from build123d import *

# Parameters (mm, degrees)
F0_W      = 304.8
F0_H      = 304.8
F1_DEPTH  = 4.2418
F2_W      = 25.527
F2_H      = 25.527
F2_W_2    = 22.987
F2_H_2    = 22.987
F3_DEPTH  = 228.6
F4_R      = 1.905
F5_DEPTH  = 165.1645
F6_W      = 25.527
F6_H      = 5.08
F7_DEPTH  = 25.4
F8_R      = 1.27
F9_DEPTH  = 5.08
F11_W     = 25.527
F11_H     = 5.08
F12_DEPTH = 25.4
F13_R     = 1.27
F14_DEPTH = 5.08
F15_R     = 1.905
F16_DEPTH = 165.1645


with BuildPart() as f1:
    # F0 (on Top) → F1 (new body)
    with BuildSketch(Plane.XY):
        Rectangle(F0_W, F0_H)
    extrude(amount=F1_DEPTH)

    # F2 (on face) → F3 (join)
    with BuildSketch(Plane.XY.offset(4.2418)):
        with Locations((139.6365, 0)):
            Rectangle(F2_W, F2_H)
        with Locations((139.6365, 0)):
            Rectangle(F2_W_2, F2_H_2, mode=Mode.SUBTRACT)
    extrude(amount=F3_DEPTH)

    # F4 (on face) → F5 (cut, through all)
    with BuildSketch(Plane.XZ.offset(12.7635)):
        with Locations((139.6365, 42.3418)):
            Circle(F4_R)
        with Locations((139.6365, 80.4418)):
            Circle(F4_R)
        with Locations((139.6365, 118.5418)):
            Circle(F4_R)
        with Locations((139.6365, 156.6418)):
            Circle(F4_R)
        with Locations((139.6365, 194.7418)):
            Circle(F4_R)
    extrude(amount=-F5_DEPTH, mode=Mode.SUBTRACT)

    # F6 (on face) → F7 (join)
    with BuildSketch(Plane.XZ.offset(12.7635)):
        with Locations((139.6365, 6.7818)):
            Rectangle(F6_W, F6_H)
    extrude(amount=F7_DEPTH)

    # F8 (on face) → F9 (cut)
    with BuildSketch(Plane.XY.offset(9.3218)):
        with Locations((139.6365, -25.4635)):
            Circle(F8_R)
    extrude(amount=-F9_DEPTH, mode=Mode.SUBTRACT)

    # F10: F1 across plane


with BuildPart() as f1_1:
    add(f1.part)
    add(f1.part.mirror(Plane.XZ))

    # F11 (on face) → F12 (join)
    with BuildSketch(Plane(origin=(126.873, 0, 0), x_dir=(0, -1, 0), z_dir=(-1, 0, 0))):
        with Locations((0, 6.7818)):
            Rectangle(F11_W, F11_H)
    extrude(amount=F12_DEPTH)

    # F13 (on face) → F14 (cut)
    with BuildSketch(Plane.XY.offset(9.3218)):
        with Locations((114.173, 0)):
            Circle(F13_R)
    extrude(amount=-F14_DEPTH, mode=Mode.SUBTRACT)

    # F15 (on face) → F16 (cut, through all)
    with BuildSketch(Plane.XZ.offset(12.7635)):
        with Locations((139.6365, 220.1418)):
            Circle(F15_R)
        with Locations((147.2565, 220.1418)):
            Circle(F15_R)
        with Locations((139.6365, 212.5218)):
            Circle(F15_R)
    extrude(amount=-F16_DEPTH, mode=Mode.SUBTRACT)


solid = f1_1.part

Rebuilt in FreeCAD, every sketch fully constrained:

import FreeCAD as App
import Part
import Sketcher
Q = App.Units.Quantity

doc = App.newDocument("Part")
params = doc.addObject("Spreadsheet::Sheet", "Params")
for row, (alias, value) in enumerate([
    ("sketch1_width", "12 in"),
    ("pad1_length", "0.167 in"),
    ("sketch2_width", "1.005 in"),
    ("sketch2_width2", "0.905 in"),
    ("pad2_length", "9 in"),
    ("sketch3_diameter", "0.15 in"),
    ("sketch4_height", "0.2 in"),
    ("sketch4_width", "1.005 in"),
    ("pad3_length", "1 in"),
    ("sketch5_diameter", "0.1 in"),
    ("pocket2_length", "0.2 in"),
    ("sketch6_height", "0.2 in"),
    ("sketch6_width", "1.005 in"),
    ("pad4_length", "1 in"),
    ("sketch7_diameter", "0.1 in"),
    ("pocket3_length", "0.2 in"),
    ("sketch8_diameter", "0.15 in"),
], start=1):
    params.set(f"A{row}", alias)
    params.set(f"B{row}", "=" + value)
    params.setAlias(f"B{row}", alias)

body = doc.addObject("PartDesign::Body", "Body")

# Sketch on XY plane
sketch1 = body.newObject("Sketcher::SketchObject", "Sketch")
sketch1.AttachmentSupport = (doc.getObject("XY_Plane"), [""])
sketch1.MapMode = "FlatFace"
sketch1.addGeometry(Part.LineSegment(App.Vector(-152, 152, 0), App.Vector(-152, -152, 0)), False)
sketch1.addGeometry(Part.LineSegment(App.Vector(-152, -152, 0), App.Vector(152, -152, 0)), False)
sketch1.addGeometry(Part.LineSegment(App.Vector(152, -152, 0), App.Vector(152, 152, 0)), False)
sketch1.addGeometry(Part.LineSegment(App.Vector(152, 152, 0), App.Vector(-152, 152, 0)), False)
sketch1.addConstraint(Sketcher.Constraint("Coincident", 0, 2, 1, 1))
sketch1.addConstraint(Sketcher.Constraint("Coincident", 1, 2, 2, 1))
sketch1.addConstraint(Sketcher.Constraint("Coincident", 2, 2, 3, 1))
sketch1.addConstraint(Sketcher.Constraint("Coincident", 3, 2, 0, 1))
sketch1.addConstraint(Sketcher.Constraint("Vertical", 0))
sketch1.addConstraint(Sketcher.Constraint("Horizontal", 1))
sketch1.addConstraint(Sketcher.Constraint("Vertical", 2))
sketch1.addConstraint(Sketcher.Constraint("Horizontal", 3))
sketch1.addConstraint(Sketcher.Constraint("Symmetric", 0, 2, 2, 2, -1, 1))
sketch1.addConstraint(Sketcher.Constraint("Equal", 3, 0))
sketch1.addConstraint(Sketcher.Constraint("DistanceX", 1, 1, 1, 2, Q("12 in")))
sketch1.setExpression("Constraints[10]", "Params.sketch1_width")
pad1 = body.newObject("PartDesign::Pad", "Pad")
pad1.Profile = sketch1
pad1.setExpression("Length", "Params.pad1_length")

# Sketch on XY plane
sketch2 = body.newObject("Sketcher::SketchObject", "Sketch001")
sketch2.AttachmentSupport = (doc.getObject("XY_Plane"), [""])
sketch2.MapMode = "FlatFace"
sketch2.AttachmentOffset = App.Placement(App.Vector(0, 0, 0.167 * 25.4), App.Rotation())
sketch2.addGeometry(Part.LineSegment(App.Vector(127, 13, 0), App.Vector(127, -13, 0)), False)
sketch2.addGeometry(Part.LineSegment(App.Vector(127, -13, 0), App.Vector(152, -13, 0)), False)
sketch2.addGeometry(Part.LineSegment(App.Vector(152, -13, 0), App.Vector(152, 13, 0)), False)
sketch2.addGeometry(Part.LineSegment(App.Vector(152, 13, 0), App.Vector(127, 13, 0)), False)
sketch2.addGeometry(Part.LineSegment(App.Vector(151, -11, 0), App.Vector(128, -11, 0)), False)
sketch2.addGeometry(Part.LineSegment(App.Vector(128, -11, 0), App.Vector(128, 11, 0)), False)
sketch2.addGeometry(Part.LineSegment(App.Vector(128, 11, 0), App.Vector(151, 11, 0)), False)
sketch2.addGeometry(Part.LineSegment(App.Vector(151, 11, 0), App.Vector(151, -11, 0)), False)
sketch2.addConstraint(Sketcher.Constraint("Coincident", 0, 2, 1, 1))
sketch2.addConstraint(Sketcher.Constraint("Coincident", 1, 2, 2, 1))
sketch2.addConstraint(Sketcher.Constraint("Coincident", 2, 2, 3, 1))
sketch2.addConstraint(Sketcher.Constraint("Coincident", 3, 2, 0, 1))
sketch2.addConstraint(Sketcher.Constraint("Coincident", 4, 2, 5, 1))
sketch2.addConstraint(Sketcher.Constraint("Coincident", 5, 2, 6, 1))
sketch2.addConstraint(Sketcher.Constraint("Coincident", 6, 2, 7, 1))
sketch2.addConstraint(Sketcher.Constraint("Coincident", 7, 2, 4, 1))
sketch2.addConstraint(Sketcher.Constraint("Vertical", 0))
sketch2.addConstraint(Sketcher.Constraint("Horizontal", 1))
sketch2.addConstraint(Sketcher.Constraint("Vertical", 2))
sketch2.addConstraint(Sketcher.Constraint("Horizontal", 3))
sketch2.addConstraint(Sketcher.Constraint("Horizontal", 4))
sketch2.addConstraint(Sketcher.Constraint("Vertical", 5))
sketch2.addConstraint(Sketcher.Constraint("Horizontal", 6))
sketch2.addConstraint(Sketcher.Constraint("Vertical", 7))
sketch2.addConstraint(Sketcher.Constraint("Equal", 3, 0))
sketch2.addConstraint(Sketcher.Constraint("Equal", 6, 5))
sketch2.addConstraint(Sketcher.Constraint("DistanceX", -1, 1, 1, 2, Q("6 in")))
sketch2.addConstraint(Sketcher.Constraint("DistanceX", 1, 1, 1, 2, Q("1.005 in")))
sketch2.addConstraint(Sketcher.Constraint("DistanceX", 4, 2, 4, 1, Q("0.905 in")))
sketch2.addConstraint(Sketcher.Constraint("DistanceX", -1, 1, 6, 2, Q("5.95 in")))
sketch2.addConstraint(Sketcher.Constraint("DistanceY", 0, 2, 4, 2, Q("0.05 in")))
sketch2.addConstraint(Sketcher.Constraint("DistanceY", 0, 2, -1, 1, Q("0.5025 in")))
sketch2.setExpression("Constraints[19]", "Params.sketch2_width")
sketch2.setExpression("Constraints[20]", "Params.sketch2_width2")
pad2 = body.newObject("PartDesign::Pad", "Pad001")
pad2.Profile = sketch2
pad2.setExpression("Length", "Params.pad2_length")

# Sketch on XZ plane
sketch3 = body.newObject("Sketcher::SketchObject", "Sketch002")
sketch3.AttachmentSupport = (doc.getObject("XZ_Plane"), [""])
sketch3.MapMode = "FlatFace"
sketch3.AttachmentOffset = App.Placement(App.Vector(0, 0, 0.5025 * 25.4), App.Rotation())
sketch3.addGeometry(Part.Circle(App.Vector(139.6, 42.3, 0), App.Vector(0, 0, 1), 1.9), False)
sketch3.addGeometry(Part.Circle(App.Vector(139.6, 80.4, 0), App.Vector(0, 0, 1), 1.9), False)
sketch3.addGeometry(Part.Circle(App.Vector(139.6, 118.5, 0), App.Vector(0, 0, 1), 1.9), False)
sketch3.addGeometry(Part.Circle(App.Vector(139.6, 156.6, 0), App.Vector(0, 0, 1), 1.9), False)
sketch3.addGeometry(Part.Circle(App.Vector(139.6, 194.7, 0), App.Vector(0, 0, 1), 1.9), False)
sketch3.addConstraint(Sketcher.Constraint("Equal", 0, 1))
sketch3.addConstraint(Sketcher.Constraint("Equal", 1, 2))
sketch3.addConstraint(Sketcher.Constraint("Equal", 2, 3))
sketch3.addConstraint(Sketcher.Constraint("Equal", 3, 4))
sketch3.addConstraint(Sketcher.Constraint("Vertical", 0, 3, 1, 3))
sketch3.addConstraint(Sketcher.Constraint("Vertical", 1, 3, 2, 3))
sketch3.addConstraint(Sketcher.Constraint("Vertical", 2, 3, 3, 3))
sketch3.addConstraint(Sketcher.Constraint("Vertical", 3, 3, 4, 3))
sketch3.addConstraint(Sketcher.Constraint("Diameter", 0, Q("0.15 in")))
sketch3.addConstraint(Sketcher.Constraint("DistanceY", 0, 3, 2, 3, Q("3 in")))
sketch3.addConstraint(Sketcher.Constraint("DistanceY", 1, 3, 3, 3, Q("3 in")))
sketch3.addConstraint(Sketcher.Constraint("DistanceY", 2, 3, 4, 3, Q("3 in")))
sketch3.addConstraint(Sketcher.Constraint("DistanceY", 0, 3, 1, 3, Q("1.5 in")))
sketch3.addConstraint(Sketcher.Constraint("DistanceY", -1, 1, 0, 3, Q("1.667 in")))
sketch3.addConstraint(Sketcher.Constraint("DistanceX", -1, 1, 0, 3, Q("5.4975 in")))
sketch3.setExpression("Constraints[8]", "Params.sketch3_diameter")
pocket1 = body.newObject("PartDesign::Pocket", "Pocket")
pocket1.Profile = sketch3
pocket1.Type = "ThroughAll"

# Sketch on XZ plane
sketch4 = body.newObject("Sketcher::SketchObject", "Sketch003")
sketch4.AttachmentSupport = (doc.getObject("XZ_Plane"), [""])
sketch4.MapMode = "FlatFace"
sketch4.AttachmentOffset = App.Placement(App.Vector(0, 0, 0.5025 * 25.4), App.Rotation())
sketch4.addGeometry(Part.LineSegment(App.Vector(127, 9, 0), App.Vector(127, 4, 0)), False)
sketch4.addGeometry(Part.LineSegment(App.Vector(127, 4, 0), App.Vector(152, 4, 0)), False)
sketch4.addGeometry(Part.LineSegment(App.Vector(152, 4, 0), App.Vector(152, 9, 0)), False)
sketch4.addGeometry(Part.LineSegment(App.Vector(152, 9, 0), App.Vector(127, 9, 0)), False)
sketch4.addConstraint(Sketcher.Constraint("Coincident", 0, 2, 1, 1))
sketch4.addConstraint(Sketcher.Constraint("Coincident", 1, 2, 2, 1))
sketch4.addConstraint(Sketcher.Constraint("Coincident", 2, 2, 3, 1))
sketch4.addConstraint(Sketcher.Constraint("Coincident", 3, 2, 0, 1))
sketch4.addConstraint(Sketcher.Constraint("Vertical", 0))
sketch4.addConstraint(Sketcher.Constraint("Horizontal", 1))
sketch4.addConstraint(Sketcher.Constraint("Vertical", 2))
sketch4.addConstraint(Sketcher.Constraint("Horizontal", 3))
sketch4.addConstraint(Sketcher.Constraint("DistanceY", 0, 2, 0, 1, Q("0.2 in")))
sketch4.addConstraint(Sketcher.Constraint("DistanceX", -1, 1, 1, 2, Q("6 in")))
sketch4.addConstraint(Sketcher.Constraint("DistanceX", 1, 1, 1, 2, Q("1.005 in")))
sketch4.addConstraint(Sketcher.Constraint("DistanceY", -1, 1, 0, 2, Q("0.167 in")))
sketch4.setExpression("Constraints[8]", "Params.sketch4_height")
sketch4.setExpression("Constraints[10]", "Params.sketch4_width")
pad3 = body.newObject("PartDesign::Pad", "Pad002")
pad3.Profile = sketch4
pad3.setExpression("Length", "Params.pad3_length")

# Sketch on XY plane
sketch5 = body.newObject("Sketcher::SketchObject", "Sketch004")
sketch5.AttachmentSupport = (doc.getObject("XY_Plane"), [""])
sketch5.MapMode = "FlatFace"
sketch5.AttachmentOffset = App.Placement(App.Vector(0, 0, 0.367 * 25.4), App.Rotation())
sketch5.addGeometry(Part.Circle(App.Vector(139.6, -25.5, 0), App.Vector(0, 0, 1), 1.3), False)
sketch5.addConstraint(Sketcher.Constraint("Diameter", 0, Q("0.1 in")))
sketch5.addConstraint(Sketcher.Constraint("DistanceX", -1, 1, 0, 3, Q("5.4975 in")))
sketch5.addConstraint(Sketcher.Constraint("DistanceY", 0, 3, -1, 1, Q("1.0025 in")))
sketch5.setExpression("Constraints[0]", "Params.sketch5_diameter")
pocket2 = body.newObject("PartDesign::Pocket", "Pocket001")
pocket2.Profile = sketch5
pocket2.setExpression("Length", "Params.pocket2_length")
body2 = doc.addObject("PartDesign::Body", "Body001")
doc.recompute()

body2.BaseFeature = body
doc.recompute()

mirroring = doc.addObject("Part::Mirroring", "Mirroring")
mirroring.Source = body
mirroring.Base = App.Vector(0, 0, 0)
mirroring.Normal = App.Vector(0, -1, 0)
body3 = doc.addObject("PartDesign::Body", "Body002")
body3.BaseFeature = mirroring
boolean = body2.newObject("PartDesign::Boolean", "Boolean")
boolean.Type = "Fuse"
boolean.addObjects([body3])
doc.recompute()

# Sketch on YZ plane
sketch6 = body2.newObject("Sketcher::SketchObject", "Sketch005")
sketch6.AttachmentSupport = (doc.getObject("YZ_Plane001"), [""])
sketch6.MapMode = "FlatFace"
sketch6.AttachmentOffset = App.Placement(App.Vector(0, 0, 4.995 * 25.4), App.Rotation())
sketch6.addGeometry(Part.LineSegment(App.Vector(13, 9, 0), App.Vector(13, 4, 0)), False)
sketch6.addGeometry(Part.LineSegment(App.Vector(13, 4, 0), App.Vector(-13, 4, 0)), False)
sketch6.addGeometry(Part.LineSegment(App.Vector(-13, 4, 0), App.Vector(-13, 9, 0)), False)
sketch6.addGeometry(Part.LineSegment(App.Vector(-13, 9, 0), App.Vector(13, 9, 0)), False)
sketch6.addConstraint(Sketcher.Constraint("Coincident", 0, 2, 1, 1))
sketch6.addConstraint(Sketcher.Constraint("Coincident", 1, 2, 2, 1))
sketch6.addConstraint(Sketcher.Constraint("Coincident", 2, 2, 3, 1))
sketch6.addConstraint(Sketcher.Constraint("Coincident", 3, 2, 0, 1))
sketch6.addConstraint(Sketcher.Constraint("Vertical", 0))
sketch6.addConstraint(Sketcher.Constraint("Horizontal", 1))
sketch6.addConstraint(Sketcher.Constraint("Vertical", 2))
sketch6.addConstraint(Sketcher.Constraint("Horizontal", 3))
sketch6.addConstraint(Sketcher.Constraint("DistanceY", 0, 2, 0, 1, Q("0.2 in")))
sketch6.addConstraint(Sketcher.Constraint("DistanceX", 1, 2, 1, 1, Q("1.005 in")))
sketch6.addConstraint(Sketcher.Constraint("DistanceY", -1, 1, 0, 2, Q("0.167 in")))
sketch6.addConstraint(Sketcher.Constraint("DistanceX", -1, 1, 0, 2, Q("0.5025 in")))
sketch6.setExpression("Constraints[8]", "Params.sketch6_height")
sketch6.setExpression("Constraints[9]", "Params.sketch6_width")
pad4 = body2.newObject("PartDesign::Pad", "Pad003")
pad4.Profile = sketch6
pad4.setExpression("Length", "Params.pad4_length")
pad4.Reversed = True

# Sketch on XY plane
sketch7 = body2.newObject("Sketcher::SketchObject", "Sketch006")
sketch7.AttachmentSupport = (doc.getObject("XY_Plane001"), [""])
sketch7.MapMode = "FlatFace"
sketch7.AttachmentOffset = App.Placement(App.Vector(0, 0, 0.367 * 25.4), App.Rotation())
sketch7.addGeometry(Part.Circle(App.Vector(114.2, 0, 0), App.Vector(0, 0, 1), 1.3), False)
sketch7.addConstraint(Sketcher.Constraint("PointOnObject", 0, 3, -1))
sketch7.addConstraint(Sketcher.Constraint("Diameter", 0, Q("0.1 in")))
sketch7.addConstraint(Sketcher.Constraint("DistanceX", -1, 1, 0, 3, Q("4.495 in")))
sketch7.setExpression("Constraints[1]", "Params.sketch7_diameter")
pocket3 = body2.newObject("PartDesign::Pocket", "Pocket002")
pocket3.Profile = sketch7
pocket3.setExpression("Length", "Params.pocket3_length")

# Sketch on XZ plane
sketch8 = body2.newObject("Sketcher::SketchObject", "Sketch007")
sketch8.AttachmentSupport = (doc.getObject("XZ_Plane001"), [""])
sketch8.MapMode = "FlatFace"
sketch8.AttachmentOffset = App.Placement(App.Vector(0, 0, 0.5025 * 25.4), App.Rotation())
sketch8.addGeometry(Part.Circle(App.Vector(139.6, 220.1, 0), App.Vector(0, 0, 1), 1.9), False)
sketch8.addGeometry(Part.Circle(App.Vector(147.3, 220.1, 0), App.Vector(0, 0, 1), 1.9), False)
sketch8.addGeometry(Part.Circle(App.Vector(139.6, 212.5, 0), App.Vector(0, 0, 1), 1.9), False)
sketch8.addConstraint(Sketcher.Constraint("Equal", 0, 1))
sketch8.addConstraint(Sketcher.Constraint("Equal", 1, 2))
sketch8.addConstraint(Sketcher.Constraint("Horizontal", 0, 3, 1, 3))
sketch8.addConstraint(Sketcher.Constraint("Vertical", 0, 3, 2, 3))
sketch8.addConstraint(Sketcher.Constraint("Diameter", 0, Q("0.15 in")))
sketch8.addConstraint(Sketcher.Constraint("DistanceX", 0, 3, 1, 3, Q("0.3 in")))
sketch8.addConstraint(Sketcher.Constraint("DistanceY", 2, 3, 0, 3, Q("0.3 in")))
sketch8.addConstraint(Sketcher.Constraint("DistanceY", -1, 1, 0, 3, Q("8.667 in")))
sketch8.addConstraint(Sketcher.Constraint("DistanceX", -1, 1, 0, 3, Q("5.4975 in")))
sketch8.setExpression("Constraints[4]", "Params.sketch8_diameter")
pocket4 = body2.newObject("PartDesign::Pocket", "Pocket003")
pocket4.Profile = sketch8
pocket4.Type = "ThroughAll"
mirroring.Visibility = False

doc.recompute()
